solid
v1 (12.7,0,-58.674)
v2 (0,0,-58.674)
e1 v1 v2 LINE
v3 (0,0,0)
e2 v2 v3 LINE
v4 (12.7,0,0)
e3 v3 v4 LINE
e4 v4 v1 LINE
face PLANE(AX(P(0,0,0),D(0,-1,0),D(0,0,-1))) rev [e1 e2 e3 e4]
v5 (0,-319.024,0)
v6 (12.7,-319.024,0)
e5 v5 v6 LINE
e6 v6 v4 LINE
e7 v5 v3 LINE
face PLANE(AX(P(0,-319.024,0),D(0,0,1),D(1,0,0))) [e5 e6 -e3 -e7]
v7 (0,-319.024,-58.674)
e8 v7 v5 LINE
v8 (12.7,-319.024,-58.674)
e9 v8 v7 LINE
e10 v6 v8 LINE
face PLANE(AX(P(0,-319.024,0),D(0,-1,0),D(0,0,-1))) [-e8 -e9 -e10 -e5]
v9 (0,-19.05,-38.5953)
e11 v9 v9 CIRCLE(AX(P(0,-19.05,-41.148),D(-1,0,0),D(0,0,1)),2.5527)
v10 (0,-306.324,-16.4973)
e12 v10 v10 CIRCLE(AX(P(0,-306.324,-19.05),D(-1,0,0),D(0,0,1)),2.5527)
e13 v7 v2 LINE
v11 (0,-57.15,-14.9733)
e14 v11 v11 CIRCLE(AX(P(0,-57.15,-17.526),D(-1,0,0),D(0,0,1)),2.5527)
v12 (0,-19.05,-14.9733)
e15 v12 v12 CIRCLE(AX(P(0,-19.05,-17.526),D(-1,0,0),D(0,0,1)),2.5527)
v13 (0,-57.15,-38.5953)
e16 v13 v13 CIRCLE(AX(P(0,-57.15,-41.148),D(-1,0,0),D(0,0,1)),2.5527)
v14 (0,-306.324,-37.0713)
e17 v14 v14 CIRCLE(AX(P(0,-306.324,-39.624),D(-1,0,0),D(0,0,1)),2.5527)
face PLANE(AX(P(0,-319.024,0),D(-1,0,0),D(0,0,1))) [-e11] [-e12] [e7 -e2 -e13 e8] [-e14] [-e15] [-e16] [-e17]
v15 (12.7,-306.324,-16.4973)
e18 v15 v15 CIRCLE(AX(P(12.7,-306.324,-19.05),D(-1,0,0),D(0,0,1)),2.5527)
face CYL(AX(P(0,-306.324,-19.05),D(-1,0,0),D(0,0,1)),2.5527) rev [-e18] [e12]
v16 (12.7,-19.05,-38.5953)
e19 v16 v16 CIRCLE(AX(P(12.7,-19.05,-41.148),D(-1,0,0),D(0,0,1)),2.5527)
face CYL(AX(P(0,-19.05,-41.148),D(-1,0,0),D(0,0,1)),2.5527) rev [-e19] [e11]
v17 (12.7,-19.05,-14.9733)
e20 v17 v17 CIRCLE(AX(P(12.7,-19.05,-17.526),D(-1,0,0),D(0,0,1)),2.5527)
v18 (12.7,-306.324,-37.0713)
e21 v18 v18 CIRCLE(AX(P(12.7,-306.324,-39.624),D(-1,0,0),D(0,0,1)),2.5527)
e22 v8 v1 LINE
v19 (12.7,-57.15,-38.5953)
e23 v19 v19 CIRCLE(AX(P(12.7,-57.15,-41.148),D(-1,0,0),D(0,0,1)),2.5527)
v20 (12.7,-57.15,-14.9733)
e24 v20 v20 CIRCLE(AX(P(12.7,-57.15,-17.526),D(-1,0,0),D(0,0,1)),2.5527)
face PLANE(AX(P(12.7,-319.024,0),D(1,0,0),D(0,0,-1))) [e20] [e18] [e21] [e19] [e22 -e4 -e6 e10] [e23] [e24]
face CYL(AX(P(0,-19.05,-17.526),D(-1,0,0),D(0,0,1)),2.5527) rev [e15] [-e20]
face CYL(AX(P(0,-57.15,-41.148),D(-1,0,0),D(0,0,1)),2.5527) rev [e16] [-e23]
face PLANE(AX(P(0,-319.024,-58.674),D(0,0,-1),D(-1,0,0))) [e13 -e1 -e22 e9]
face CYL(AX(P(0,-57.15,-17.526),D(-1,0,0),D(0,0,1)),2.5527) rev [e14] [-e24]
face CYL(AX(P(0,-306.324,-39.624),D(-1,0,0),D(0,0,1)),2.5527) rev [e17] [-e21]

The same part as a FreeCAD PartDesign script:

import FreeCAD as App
import Part
import Sketcher
Q = App.Units.Quantity

doc = App.newDocument("Part")
body = doc.addObject("PartDesign::Body", "Body")

sketch1 = doc.addObject("Sketcher::SketchObject", "Sketch")
body.addObject(sketch1)
sketch1.AttachmentSupport = (doc.XZ_Plane, [""])
sketch1.MapMode = "FlatFace"
sketch1.addGeometry(Part.LineSegment(App.Vector(0, -59, 0), App.Vector(0, 0, 0)), False)
sketch1.addGeometry(Part.LineSegment(App.Vector(0, 0, 0), App.Vector(13, 0, 0)), False)
sketch1.addGeometry(Part.LineSegment(App.Vector(13, 0, 0), App.Vector(13, -59, 0)), False)
sketch1.addGeometry(Part.LineSegment(App.Vector(13, -59, 0), App.Vector(0, -59, 0)), False)
sketch1.addConstraint(Sketcher.Constraint("Coincident", 0, 2, 1, 1))
sketch1.addConstraint(Sketcher.Constraint("Coincident", 1, 2, 2, 1))
sketch1.addConstraint(Sketcher.Constraint("Coincident", 2, 2, 3, 1))
sketch1.addConstraint(Sketcher.Constraint("Coincident", 3, 2, 0, 1))
sketch1.addConstraint(Sketcher.Constraint("Vertical", 0))
sketch1.addConstraint(Sketcher.Constraint("Horizontal", 1))
sketch1.addConstraint(Sketcher.Constraint("Vertical", 2))
sketch1.addConstraint(Sketcher.Constraint("Horizontal", 3))
sketch1.addConstraint(Sketcher.Constraint("Coincident", 0, 2, -1, 1))
sketch1.addConstraint(Sketcher.Constraint("DistanceX", 1, 1, 1, 2, Q("0.5 in")))
sketch1.addConstraint(Sketcher.Constraint("DistanceY", 0, 1, 0, 2, Q("2.31 in")))
pad1 = doc.addObject("PartDesign::Pad", "Pad")
body.addObject(pad1)
pad1.Profile = sketch1
pad1.Length = Q("12.56 in")

sketch2 = doc.addObject("Sketcher::SketchObject", "Sketch001")
body.addObject(sketch2)
sketch2.AttachmentSupport = (doc.YZ_Plane, [""])
sketch2.MapMode = "FlatFace"
sketch2.addGeometry(Part.Circle(App.Vector(-306.3, -19.1, 0), App.Vector(0, 0, 1), 2.6), False)
sketch2.addGeometry(Part.Circle(App.Vector(-306.3, -39.6, 0), App.Vector(0, 0, 1), 2.6), False)
sketch2.addGeometry(Part.Circle(App.Vector(-19.1, -41.1, 0), App.Vector(0, 0, 1), 2.6), False)
sketch2.addGeometry(Part.Circle(App.Vector(-19.1, -17.5, 0), App.Vector(0, 0, 1), 2.6), False)
sketch2.addGeometry(Part.Circle(App.Vector(-57.1, -41.1, 0), App.Vector(0, 0, 1), 2.6), False)
sketch2.addGeometry(Part.Circle(App.Vector(-57.1, -17.5, 0), App.Vector(0, 0, 1), 2.6), False)
sketch2.addConstraint(Sketcher.Constraint("Equal", 0, 1))
sketch2.addConstraint(Sketcher.Constraint("Equal", 1, 2))
sketch2.addConstraint(Sketcher.Constraint("Equal", 2, 3))
sketch2.addConstraint(Sketcher.Constraint("Equal", 3, 4))
sketch2.addConstraint(Sketcher.Constraint("Equal", 4, 5))
sketch2.addConstraint(Sketcher.Constraint("Horizontal", 2, 3, 4, 3))
sketch2.addConstraint(Sketcher.Constraint("Horizontal", 3, 3, 5, 3))
sketch2.addConstraint(Sketcher.Constraint("Vertical", 0, 3, 1, 3))
sketch2.addConstraint(Sketcher.Constraint("Vertical", 2, 3, 3, 3))
sketch2.addConstraint(Sketcher.Constraint("Vertical", 4, 3, 5, 3))
sketch2.addConstraint(Sketcher.Constraint("Diameter", 0, Q("0.201 in")))
sketch2.addConstraint(Sketcher.Constraint("DistanceX", 4, 3, 2, 3, Q("1.5 in")))
sketch2.addConstraint(Sketcher.Constraint("DistanceX", 0, 3, -1, 1, Q("12.06 in")))
sketch2.addConstraint(Sketcher.Constraint("DistanceY", 0, 3, -1, 1, Q("0.75 in")))
sketch2.addConstraint(Sketcher.Constraint("DistanceY", 1, 3, -1, 1, Q("1.56 in")))
sketch2.addConstraint(Sketcher.Constraint("DistanceX", 2, 3, -1, 1, Q("0.75 in")))
sketch2.addConstraint(Sketcher.Constraint("DistanceY", 2, 3, -1, 1, Q("1.62 in")))
sketch2.addConstraint(Sketcher.Constraint("DistanceY", 3, 3, -1, 1, Q("0.69 in")))
doc.recompute()
hole = doc.addObject("PartDesign::Hole", "Hole")
body.addObject(hole)
hole.Profile = sketch2
hole.ThreadType = "None"
hole.Diameter = Q("0.201 in")
hole.DepthType = "ThroughAll"
hole.Reversed = True

doc.recompute()
